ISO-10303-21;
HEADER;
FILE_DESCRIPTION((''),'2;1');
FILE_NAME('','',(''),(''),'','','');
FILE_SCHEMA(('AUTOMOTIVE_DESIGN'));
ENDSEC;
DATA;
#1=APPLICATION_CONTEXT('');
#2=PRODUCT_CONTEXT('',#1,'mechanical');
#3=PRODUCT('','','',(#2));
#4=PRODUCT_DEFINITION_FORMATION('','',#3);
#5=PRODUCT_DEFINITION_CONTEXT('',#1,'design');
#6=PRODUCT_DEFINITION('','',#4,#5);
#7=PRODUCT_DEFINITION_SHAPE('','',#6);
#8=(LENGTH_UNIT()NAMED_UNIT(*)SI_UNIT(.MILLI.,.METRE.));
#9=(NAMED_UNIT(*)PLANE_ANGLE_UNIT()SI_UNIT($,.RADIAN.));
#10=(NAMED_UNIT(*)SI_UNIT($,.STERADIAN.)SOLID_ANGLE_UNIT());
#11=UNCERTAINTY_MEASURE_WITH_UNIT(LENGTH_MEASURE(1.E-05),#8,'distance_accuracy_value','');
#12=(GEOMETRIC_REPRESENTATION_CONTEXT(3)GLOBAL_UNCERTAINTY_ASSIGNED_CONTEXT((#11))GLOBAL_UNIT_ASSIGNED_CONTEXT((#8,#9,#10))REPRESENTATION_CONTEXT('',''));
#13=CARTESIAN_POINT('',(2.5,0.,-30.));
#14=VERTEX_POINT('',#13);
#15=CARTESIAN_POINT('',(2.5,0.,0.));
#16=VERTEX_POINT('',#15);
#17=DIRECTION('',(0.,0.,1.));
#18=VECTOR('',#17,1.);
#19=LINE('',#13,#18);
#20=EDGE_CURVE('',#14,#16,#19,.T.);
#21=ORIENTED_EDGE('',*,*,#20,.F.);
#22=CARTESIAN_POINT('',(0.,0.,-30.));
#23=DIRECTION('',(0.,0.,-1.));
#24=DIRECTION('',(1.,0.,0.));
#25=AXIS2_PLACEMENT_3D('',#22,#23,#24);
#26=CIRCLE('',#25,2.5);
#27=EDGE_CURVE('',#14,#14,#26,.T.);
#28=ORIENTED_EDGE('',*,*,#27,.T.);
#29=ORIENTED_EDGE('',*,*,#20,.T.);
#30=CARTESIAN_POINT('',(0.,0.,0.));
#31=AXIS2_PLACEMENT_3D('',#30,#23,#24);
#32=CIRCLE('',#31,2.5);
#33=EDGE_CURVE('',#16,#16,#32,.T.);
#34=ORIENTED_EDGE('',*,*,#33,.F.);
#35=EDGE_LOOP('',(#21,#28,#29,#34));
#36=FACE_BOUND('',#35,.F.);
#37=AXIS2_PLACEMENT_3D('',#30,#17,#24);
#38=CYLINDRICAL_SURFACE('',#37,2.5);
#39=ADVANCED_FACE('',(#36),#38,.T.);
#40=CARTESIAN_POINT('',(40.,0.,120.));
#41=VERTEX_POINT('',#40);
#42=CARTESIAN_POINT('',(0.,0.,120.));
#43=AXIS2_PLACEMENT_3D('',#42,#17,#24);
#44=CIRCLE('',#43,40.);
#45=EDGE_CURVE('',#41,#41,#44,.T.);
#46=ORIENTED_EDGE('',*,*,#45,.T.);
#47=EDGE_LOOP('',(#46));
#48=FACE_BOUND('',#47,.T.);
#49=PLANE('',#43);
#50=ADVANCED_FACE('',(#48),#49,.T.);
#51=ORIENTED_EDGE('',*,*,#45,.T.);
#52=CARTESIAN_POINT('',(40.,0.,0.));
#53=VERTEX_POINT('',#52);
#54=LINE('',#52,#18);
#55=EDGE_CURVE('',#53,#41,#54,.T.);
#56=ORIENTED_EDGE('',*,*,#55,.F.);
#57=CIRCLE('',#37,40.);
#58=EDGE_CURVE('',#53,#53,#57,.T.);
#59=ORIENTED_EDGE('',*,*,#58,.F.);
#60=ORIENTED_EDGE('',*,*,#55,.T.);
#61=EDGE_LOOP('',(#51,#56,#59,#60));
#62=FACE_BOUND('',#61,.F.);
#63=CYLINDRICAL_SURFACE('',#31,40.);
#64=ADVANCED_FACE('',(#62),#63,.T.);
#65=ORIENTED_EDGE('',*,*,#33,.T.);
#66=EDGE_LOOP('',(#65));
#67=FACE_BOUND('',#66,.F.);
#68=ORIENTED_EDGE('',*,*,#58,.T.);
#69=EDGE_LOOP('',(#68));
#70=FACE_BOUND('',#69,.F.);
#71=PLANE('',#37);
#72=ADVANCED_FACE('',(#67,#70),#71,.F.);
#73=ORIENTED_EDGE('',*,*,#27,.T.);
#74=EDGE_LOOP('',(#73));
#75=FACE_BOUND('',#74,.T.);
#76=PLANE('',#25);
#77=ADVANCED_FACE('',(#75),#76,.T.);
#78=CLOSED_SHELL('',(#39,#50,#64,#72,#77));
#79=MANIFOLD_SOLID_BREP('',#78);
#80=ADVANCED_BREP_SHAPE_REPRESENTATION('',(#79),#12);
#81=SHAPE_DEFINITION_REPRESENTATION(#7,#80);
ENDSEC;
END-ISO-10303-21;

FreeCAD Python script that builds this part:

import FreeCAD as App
import Part
import Sketcher
from FreeCAD import Vector
Q = App.Units.Quantity

doc = App.newDocument("Part")
params = doc.addObject("Spreadsheet::Sheet", "Params")
for row, (alias, value) in enumerate([
    ("sketch1_diameter", "80 mm"),
    ("pad1_length", "120 mm"),
    ("sketch2_diameter", "5 mm"),
    ("pad2_length", "25 mm"),
    ("sketch3_diameter", "5 mm"),
    ("pad3_length", "30 mm"),
], start=1):
    params.set(f"A{row}", alias)
    params.set(f"B{row}", "=" + value)
    params.setAlias(f"B{row}", alias)

body = doc.addObject("PartDesign::Body", "Body")

sketch1 = body.newObject("Sketcher::SketchObject", "Sketch")
sketch1.AttachmentSupport = (doc.getObject("XY_Plane"), [""])
sketch1.MapMode = "FlatFace"
sketch1.addGeometry(Part.Circle(Vector(0, 0, 0), Vector(0, 0, 1), 40), False)
sketch1.addConstraint(Sketcher.Constraint("Coincident", 0, 3, -1, 1))
sketch1.addConstraint(Sketcher.Constraint("Diameter", 0, Q("80 mm")))
sketch1.setExpression("Constraints[1]", "Params.sketch1_diameter")
pad1 = body.newObject("PartDesign::Pad", "Pad")
pad1.Profile = sketch1
pad1.setExpression("Length", "Params.pad1_length")

sketch2 = body.newObject("Sketcher::SketchObject", "Sketch001")
sketch2.AttachmentSupport = (doc.getObject("XY_Plane"), [""])
sketch2.MapMode = "FlatFace"
sketch2.addGeometry(Part.Circle(Vector(0, 0, 0), Vector(0, 0, 1), 2.5), False)
sketch2.addConstraint(Sketcher.Constraint("Coincident", 0, 3, -1, 1))
sketch2.addConstraint(Sketcher.Constraint("Diameter", 0, Q("5 mm")))
sketch2.setExpression("Constraints[1]", "Params.sketch2_diameter")
pad2 = body.newObject("PartDesign::Pad", "Pad001")
pad2.Profile = sketch2
pad2.setExpression("Length", "Params.pad2_length")
pad2.Reversed = True

sketch3 = body.newObject("Sketcher::SketchObject", "Sketch002")
sketch3.AttachmentSupport = (doc.getObject("XY_Plane"), [""])
sketch3.MapMode = "FlatFace"
sketch3.addGeometry(Part.Circle(Vector(0, 0, 0), Vector(0, 0, 1), 2.5), False)
sketch3.addConstraint(Sketcher.Constraint("Coincident", 0, 3, -1, 1))
sketch3.addConstraint(Sketcher.Constraint("Diameter", 0, Q("5 mm")))
sketch3.setExpression("Constraints[1]", "Params.sketch3_diameter")
pad3 = body.newObject("PartDesign::Pad", "Pad002")
pad3.Profile = sketch3
pad3.setExpression("Length", "Params.pad3_length")
pad3.Reversed = True

doc.recompute()
